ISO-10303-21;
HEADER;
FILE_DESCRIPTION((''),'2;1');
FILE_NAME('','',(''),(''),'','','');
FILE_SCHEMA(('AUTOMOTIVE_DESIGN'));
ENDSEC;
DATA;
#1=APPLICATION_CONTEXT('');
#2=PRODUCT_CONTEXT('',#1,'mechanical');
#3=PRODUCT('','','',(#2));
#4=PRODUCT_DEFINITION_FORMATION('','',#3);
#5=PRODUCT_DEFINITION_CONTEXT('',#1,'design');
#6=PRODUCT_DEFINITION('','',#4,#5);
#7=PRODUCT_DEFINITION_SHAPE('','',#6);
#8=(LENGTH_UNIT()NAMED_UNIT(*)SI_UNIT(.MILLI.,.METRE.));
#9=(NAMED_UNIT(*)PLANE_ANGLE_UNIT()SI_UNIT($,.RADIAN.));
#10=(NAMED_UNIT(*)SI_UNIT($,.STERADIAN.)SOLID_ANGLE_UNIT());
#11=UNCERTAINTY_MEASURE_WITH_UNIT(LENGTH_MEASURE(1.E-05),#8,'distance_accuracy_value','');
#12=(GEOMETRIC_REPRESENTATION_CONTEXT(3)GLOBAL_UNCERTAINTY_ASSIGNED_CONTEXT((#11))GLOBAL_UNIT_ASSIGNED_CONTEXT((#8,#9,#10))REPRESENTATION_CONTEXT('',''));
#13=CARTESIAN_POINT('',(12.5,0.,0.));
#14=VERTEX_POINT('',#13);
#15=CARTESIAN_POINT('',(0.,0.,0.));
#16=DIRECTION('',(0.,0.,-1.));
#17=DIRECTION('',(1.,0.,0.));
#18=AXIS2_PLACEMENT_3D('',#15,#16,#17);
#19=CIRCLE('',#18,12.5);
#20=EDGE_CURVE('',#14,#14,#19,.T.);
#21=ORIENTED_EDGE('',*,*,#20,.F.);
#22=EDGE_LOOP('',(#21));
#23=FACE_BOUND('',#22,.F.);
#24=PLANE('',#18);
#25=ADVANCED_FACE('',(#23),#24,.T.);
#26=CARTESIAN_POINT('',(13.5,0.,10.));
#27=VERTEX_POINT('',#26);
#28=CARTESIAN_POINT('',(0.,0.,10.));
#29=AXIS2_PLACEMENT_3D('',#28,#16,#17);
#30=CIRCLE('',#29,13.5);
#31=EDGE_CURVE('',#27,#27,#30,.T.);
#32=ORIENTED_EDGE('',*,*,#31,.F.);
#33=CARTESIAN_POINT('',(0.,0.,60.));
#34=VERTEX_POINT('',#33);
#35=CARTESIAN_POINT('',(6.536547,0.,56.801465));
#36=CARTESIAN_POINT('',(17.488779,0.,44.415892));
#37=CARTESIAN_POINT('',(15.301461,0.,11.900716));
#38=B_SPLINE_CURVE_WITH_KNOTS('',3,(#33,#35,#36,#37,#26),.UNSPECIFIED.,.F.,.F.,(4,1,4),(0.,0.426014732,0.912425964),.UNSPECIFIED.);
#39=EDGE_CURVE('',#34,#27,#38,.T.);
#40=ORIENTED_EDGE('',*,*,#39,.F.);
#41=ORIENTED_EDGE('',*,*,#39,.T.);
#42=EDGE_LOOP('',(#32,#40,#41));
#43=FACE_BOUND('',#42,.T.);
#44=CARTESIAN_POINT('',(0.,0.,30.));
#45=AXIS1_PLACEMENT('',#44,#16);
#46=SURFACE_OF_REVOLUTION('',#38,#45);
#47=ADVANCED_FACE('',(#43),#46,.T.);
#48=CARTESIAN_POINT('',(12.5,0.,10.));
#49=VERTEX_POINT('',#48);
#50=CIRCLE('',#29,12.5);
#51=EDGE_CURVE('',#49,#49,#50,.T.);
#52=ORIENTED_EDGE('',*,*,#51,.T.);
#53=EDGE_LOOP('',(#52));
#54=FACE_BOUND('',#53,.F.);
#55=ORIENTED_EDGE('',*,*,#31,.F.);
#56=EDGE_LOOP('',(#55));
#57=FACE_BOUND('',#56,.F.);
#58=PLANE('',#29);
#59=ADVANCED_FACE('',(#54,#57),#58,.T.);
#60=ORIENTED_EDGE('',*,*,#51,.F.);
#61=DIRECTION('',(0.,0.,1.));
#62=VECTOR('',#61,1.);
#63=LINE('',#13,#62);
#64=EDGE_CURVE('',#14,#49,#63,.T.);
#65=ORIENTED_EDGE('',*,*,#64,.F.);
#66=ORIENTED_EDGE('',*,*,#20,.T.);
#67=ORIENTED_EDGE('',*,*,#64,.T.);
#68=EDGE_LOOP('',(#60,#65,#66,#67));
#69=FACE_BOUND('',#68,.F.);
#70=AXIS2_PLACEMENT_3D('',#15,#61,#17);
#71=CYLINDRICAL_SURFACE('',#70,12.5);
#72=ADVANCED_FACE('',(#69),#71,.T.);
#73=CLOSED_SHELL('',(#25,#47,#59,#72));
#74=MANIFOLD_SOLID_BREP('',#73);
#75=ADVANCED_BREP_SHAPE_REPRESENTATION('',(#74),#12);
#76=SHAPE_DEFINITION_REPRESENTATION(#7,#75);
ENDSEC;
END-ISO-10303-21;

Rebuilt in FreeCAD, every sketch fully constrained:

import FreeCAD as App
import Part
import Sketcher

doc = App.newDocument("Part")
params = doc.addObject("Spreadsheet::Sheet", "Params")
for row, (alias, value) in enumerate([
    ("sketch1_width", "1 mm"),
    ("revolution_angle", "360 deg"),
], start=1):
    params.set(f"A{row}", alias)
    params.set(f"B{row}", "=" + value)
    params.setAlias(f"B{row}", alias)

body = doc.addObject("PartDesign::Body", "Body")

# Sketch on XZ plane
sketch1 = body.newObject("Sketcher::SketchObject", "Sketch")
sketch1.AttachmentSupport = (doc.getObject("XZ_Plane"), [""])
sketch1.MapMode = "FlatFace"
sketch1.addGeometry([
    Part.BSplineCurve([App.Vector(0, 60, 0), App.Vector(6.536547, 56.801465, 0), App.Vector(17.488779, 44.415892, 0), App.Vector(15.301461, 11.900716, 0), App.Vector(13.5, 10, 0)], [4, 1, 4], [0, 0.426014732, 0.912425964], False, 3, [1, 1, 1, 1, 1], False),  # 0
    Part.LineSegment(App.Vector(0, 60, 0), App.Vector(0, 0, 0)),  # 1
    Part.LineSegment(App.Vector(0, 0, 0), App.Vector(12.5, 0, 0)),  # 2
    Part.LineSegment(App.Vector(12.5, 0, 0), App.Vector(12.5, 10, 0)),  # 3
    Part.LineSegment(App.Vector(12.5, 10, 0), App.Vector(13.5, 10, 0)),  # 4
], False)
sketch1.addConstraint([
    Sketcher.Constraint("Block", 0),
    Sketcher.Constraint("Coincident", 0, 1, 1, 1),
    Sketcher.Constraint("Coincident", 1, 2, 2, 1),
    Sketcher.Constraint("Coincident", 2, 2, 3, 1),
    Sketcher.Constraint("Coincident", 3, 2, 4, 1),
    Sketcher.Constraint("Coincident", 4, 2, 0, 2),
    Sketcher.Constraint("Vertical", 1),
    Sketcher.Constraint("Horizontal", 2),
    Sketcher.Constraint("Vertical", 3),
    Sketcher.Constraint("Horizontal", 4),
    Sketcher.Constraint("PointOnObject", 2, 2, -1),
    Sketcher.Constraint("DistanceX", 4, 1, 4, 2, 1.0),
])
sketch1.setExpression("Constraints[11]", "Params.sketch1_width")
revolution = body.newObject("PartDesign::Revolution", "Revolution")
revolution.Profile = sketch1
revolution.ReferenceAxis = (sketch1, ["V_Axis"])
revolution.setExpression("Angle", "Params.revolution_angle")

doc.recompute()
